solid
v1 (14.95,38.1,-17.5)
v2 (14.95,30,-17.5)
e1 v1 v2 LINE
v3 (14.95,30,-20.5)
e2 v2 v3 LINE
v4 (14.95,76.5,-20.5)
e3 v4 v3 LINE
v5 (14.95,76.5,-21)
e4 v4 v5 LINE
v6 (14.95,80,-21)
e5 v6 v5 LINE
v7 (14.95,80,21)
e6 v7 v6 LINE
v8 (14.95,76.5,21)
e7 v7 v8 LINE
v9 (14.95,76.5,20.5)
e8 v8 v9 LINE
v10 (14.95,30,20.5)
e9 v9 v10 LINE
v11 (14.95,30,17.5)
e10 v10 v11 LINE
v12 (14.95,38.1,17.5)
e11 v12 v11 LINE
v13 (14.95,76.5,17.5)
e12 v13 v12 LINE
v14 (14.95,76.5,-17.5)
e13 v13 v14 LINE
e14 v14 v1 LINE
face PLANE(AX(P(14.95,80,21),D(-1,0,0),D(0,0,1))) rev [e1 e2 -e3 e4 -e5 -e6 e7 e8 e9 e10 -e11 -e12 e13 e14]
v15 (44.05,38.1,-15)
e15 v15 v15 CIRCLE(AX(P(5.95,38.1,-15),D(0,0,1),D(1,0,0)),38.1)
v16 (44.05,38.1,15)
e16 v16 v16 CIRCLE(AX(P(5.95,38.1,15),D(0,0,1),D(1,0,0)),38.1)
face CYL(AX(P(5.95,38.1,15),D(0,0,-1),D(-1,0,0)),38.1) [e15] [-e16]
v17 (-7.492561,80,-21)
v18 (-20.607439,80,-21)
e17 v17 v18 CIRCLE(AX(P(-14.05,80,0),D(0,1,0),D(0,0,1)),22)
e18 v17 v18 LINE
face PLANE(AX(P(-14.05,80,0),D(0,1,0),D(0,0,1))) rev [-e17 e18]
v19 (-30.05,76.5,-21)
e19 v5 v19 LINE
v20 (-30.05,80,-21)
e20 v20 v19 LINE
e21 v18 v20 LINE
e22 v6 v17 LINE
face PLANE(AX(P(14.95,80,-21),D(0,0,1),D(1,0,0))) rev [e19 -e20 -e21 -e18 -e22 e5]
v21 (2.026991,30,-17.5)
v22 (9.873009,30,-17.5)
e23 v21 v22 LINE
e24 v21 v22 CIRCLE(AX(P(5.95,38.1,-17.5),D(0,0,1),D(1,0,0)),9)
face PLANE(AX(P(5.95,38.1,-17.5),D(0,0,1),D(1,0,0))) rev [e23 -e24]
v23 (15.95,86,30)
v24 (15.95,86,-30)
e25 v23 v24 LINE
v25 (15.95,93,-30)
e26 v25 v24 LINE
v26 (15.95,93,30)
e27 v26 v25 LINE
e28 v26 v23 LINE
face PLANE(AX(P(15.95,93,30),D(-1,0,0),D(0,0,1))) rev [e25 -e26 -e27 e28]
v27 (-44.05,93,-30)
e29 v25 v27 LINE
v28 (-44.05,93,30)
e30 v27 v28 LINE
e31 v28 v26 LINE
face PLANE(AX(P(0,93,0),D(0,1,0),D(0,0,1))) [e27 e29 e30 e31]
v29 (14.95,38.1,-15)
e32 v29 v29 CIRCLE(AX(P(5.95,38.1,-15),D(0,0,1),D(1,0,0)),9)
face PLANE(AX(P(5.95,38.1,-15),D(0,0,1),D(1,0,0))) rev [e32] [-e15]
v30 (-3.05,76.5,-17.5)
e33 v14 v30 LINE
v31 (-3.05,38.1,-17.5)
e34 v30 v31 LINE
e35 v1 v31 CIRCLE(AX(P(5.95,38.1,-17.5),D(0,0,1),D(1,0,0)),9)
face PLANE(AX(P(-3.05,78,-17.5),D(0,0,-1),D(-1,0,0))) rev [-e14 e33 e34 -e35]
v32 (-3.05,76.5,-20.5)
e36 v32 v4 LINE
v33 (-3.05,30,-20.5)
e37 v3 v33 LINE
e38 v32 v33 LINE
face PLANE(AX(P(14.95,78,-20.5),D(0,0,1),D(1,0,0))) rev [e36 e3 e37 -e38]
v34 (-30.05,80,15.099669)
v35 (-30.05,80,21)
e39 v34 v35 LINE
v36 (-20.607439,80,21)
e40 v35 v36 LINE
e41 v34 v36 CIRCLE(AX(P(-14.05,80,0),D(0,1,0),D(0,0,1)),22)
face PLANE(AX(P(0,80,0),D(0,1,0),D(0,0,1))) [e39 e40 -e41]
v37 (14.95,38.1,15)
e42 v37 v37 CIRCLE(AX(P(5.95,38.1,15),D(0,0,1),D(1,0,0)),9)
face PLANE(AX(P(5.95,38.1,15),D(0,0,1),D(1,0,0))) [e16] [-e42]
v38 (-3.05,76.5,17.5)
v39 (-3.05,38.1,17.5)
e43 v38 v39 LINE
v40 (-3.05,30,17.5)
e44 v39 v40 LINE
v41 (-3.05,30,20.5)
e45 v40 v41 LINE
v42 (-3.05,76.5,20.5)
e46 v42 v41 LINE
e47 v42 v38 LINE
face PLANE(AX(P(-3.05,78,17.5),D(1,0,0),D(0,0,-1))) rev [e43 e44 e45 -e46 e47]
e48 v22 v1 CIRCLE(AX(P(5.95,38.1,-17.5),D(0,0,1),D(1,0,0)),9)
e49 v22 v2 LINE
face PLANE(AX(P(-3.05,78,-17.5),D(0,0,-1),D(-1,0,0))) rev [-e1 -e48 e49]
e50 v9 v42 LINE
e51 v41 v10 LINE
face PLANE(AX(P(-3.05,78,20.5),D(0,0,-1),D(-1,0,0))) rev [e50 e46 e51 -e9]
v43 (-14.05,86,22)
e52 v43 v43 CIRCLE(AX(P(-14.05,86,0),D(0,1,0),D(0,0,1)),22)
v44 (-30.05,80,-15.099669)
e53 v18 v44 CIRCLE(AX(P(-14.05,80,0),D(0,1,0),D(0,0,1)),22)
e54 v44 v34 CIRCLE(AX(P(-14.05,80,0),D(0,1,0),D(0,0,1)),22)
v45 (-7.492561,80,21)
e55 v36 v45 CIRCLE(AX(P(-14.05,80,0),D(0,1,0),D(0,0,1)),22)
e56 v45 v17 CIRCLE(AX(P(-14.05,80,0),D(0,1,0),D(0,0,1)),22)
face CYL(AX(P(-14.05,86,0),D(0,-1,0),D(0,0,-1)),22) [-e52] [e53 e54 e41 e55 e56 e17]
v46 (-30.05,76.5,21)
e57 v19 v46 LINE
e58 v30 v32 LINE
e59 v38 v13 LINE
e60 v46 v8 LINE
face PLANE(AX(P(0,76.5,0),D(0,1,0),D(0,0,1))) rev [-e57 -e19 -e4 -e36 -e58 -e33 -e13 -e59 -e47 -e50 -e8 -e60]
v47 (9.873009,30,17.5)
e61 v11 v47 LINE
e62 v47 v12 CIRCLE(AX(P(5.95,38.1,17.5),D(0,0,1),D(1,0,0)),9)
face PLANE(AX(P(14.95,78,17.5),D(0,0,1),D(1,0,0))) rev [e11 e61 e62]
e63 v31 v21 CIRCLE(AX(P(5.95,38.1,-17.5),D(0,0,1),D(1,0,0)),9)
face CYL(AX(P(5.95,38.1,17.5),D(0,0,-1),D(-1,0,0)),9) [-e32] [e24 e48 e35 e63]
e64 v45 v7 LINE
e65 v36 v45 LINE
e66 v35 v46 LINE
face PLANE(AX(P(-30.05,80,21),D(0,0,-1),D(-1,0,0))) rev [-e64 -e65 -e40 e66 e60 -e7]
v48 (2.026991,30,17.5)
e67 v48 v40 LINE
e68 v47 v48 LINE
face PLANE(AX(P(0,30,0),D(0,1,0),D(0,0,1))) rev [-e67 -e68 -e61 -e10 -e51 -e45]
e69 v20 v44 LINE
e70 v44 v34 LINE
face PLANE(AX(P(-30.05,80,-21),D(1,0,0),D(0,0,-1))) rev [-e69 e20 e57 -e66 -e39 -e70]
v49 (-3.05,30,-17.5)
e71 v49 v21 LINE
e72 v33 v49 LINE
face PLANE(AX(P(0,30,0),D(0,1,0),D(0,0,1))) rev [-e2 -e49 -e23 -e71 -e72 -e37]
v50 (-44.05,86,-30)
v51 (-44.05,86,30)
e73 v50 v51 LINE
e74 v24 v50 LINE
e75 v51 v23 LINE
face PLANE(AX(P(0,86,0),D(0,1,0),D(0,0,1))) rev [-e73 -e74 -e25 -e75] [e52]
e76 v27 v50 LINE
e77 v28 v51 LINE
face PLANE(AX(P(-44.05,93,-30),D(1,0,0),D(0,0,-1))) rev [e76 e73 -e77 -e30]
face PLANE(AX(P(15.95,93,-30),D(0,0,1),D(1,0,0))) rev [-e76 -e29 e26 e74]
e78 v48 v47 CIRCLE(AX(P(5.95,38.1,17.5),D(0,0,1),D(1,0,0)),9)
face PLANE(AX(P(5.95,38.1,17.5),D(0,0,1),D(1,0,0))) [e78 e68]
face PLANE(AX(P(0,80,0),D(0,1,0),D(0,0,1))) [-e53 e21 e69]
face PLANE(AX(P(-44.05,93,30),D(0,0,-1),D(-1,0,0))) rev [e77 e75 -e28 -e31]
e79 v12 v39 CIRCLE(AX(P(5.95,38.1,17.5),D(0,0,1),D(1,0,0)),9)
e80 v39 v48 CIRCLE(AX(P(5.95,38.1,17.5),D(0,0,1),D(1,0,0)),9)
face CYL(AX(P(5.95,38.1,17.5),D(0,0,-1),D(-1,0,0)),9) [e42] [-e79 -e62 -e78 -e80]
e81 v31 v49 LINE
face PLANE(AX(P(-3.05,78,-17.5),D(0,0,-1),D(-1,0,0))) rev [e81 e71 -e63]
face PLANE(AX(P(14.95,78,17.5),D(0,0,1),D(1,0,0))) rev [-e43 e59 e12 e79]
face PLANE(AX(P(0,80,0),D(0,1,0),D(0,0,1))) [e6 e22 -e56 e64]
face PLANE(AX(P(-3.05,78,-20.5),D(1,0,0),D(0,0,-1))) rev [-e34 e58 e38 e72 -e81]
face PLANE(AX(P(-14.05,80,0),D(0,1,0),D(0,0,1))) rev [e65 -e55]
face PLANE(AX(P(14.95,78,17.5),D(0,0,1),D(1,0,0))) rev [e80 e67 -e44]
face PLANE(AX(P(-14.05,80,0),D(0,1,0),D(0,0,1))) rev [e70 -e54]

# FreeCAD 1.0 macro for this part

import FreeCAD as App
import Part
import Sketcher


def add_polygon(sketch, points):
    """Adds a closed chain of lines whose ends are joined by coincident constraints."""
    first, n = sketch.GeometryCount, len(points)
    for a, b in zip(points, points[1:] + points[:1]):
        sketch.addGeometry(Part.LineSegment(App.Vector(*a, 0), App.Vector(*b, 0)), False)
    for i in range(n):
        sketch.addConstraint(Sketcher.Constraint("Coincident", first + i, 2, first + (i + 1) % n, 1))

doc = App.newDocument("Part")
body = doc.addObject("PartDesign::Body", "Body")

sketch1 = body.newObject("Sketcher::SketchObject", "Sketch")
sketch1.AttachmentSupport = (doc.getObject("XZ_Plane"), [""])
sketch1.MapMode = "FlatFace"
sketch1.AttachmentOffset = App.Placement(App.Vector(0, 0, -89), App.Rotation())
add_polygon(sketch1, [(-44, -30), (-44, 30), (16, 30), (16, -30)])
sketch1.addConstraint(Sketcher.Constraint("Vertical", 0))
sketch1.addConstraint(Sketcher.Constraint("Horizontal", 1))
sketch1.addConstraint(Sketcher.Constraint("Vertical", 2))
sketch1.addConstraint(Sketcher.Constraint("Horizontal", 3))
sketch1.addConstraint(Sketcher.Constraint("Equal", 3, 0))
sketch1.addConstraint(Sketcher.Constraint("DistanceX", 1, 1, 1, 2, 60.0))
sketch1.addConstraint(Sketcher.Constraint("DistanceY", -1, 1, 0, 2, 30.0))
sketch1.addConstraint(Sketcher.Constraint("DistanceX", 0, 2, -1, 1, 44.05))
pad1 = body.newObject("PartDesign::Pad", "Pad")
pad1.Profile = sketch1
pad1.Length = 4
pad1.Reversed = True

sketch2 = body.newObject("Sketcher::SketchObject", "Sketch001")
sketch2.AttachmentSupport = (doc.getObject("XZ_Plane"), [""])
sketch2.MapMode = "FlatFace"
sketch2.AttachmentOffset = App.Placement(App.Vector(0, 0, -86), App.Rotation())
add_polygon(sketch2, [(-44, -30), (-44, 30), (16, 30), (16, -30)])
sketch2.addConstraint(Sketcher.Constraint("Vertical", 0))
sketch2.addConstraint(Sketcher.Constraint("Horizontal", 1))
sketch2.addConstraint(Sketcher.Constraint("Vertical", 2))
sketch2.addConstraint(Sketcher.Constraint("Horizontal", 3))
sketch2.addConstraint(Sketcher.Constraint("Equal", 3, 0))
sketch2.addConstraint(Sketcher.Constraint("DistanceX", 1, 1, 1, 2, 60.0))
sketch2.addConstraint(Sketcher.Constraint("DistanceY", -1, 1, 0, 2, 30.0))
sketch2.addConstraint(Sketcher.Constraint("DistanceX", 0, 2, -1, 1, 44.05))
pad2 = body.newObject("PartDesign::Pad", "Pad001")
pad2.Profile = sketch2
pad2.Length = 3
pad2.Reversed = True

sketch3 = body.newObject("Sketcher::SketchObject", "Sketch002")
sketch3.AttachmentSupport = (doc.getObject("XZ_Plane"), [""])
sketch3.MapMode = "FlatFace"
sketch3.AttachmentOffset = App.Placement(App.Vector(0, 0, -80), App.Rotation())
sketch3.addGeometry(Part.Circle(App.Vector(-14, 0, 0), App.Vector(0, 0, 1), 22), False)
sketch3.addConstraint(Sketcher.Constraint("PointOnObject", 0, 3, -1))
sketch3.addConstraint(Sketcher.Constraint("Diameter", 0, 44.0))
sketch3.addConstraint(Sketcher.Constraint("DistanceX", 0, 3, -1, 1, 14.05))
pad3 = body.newObject("PartDesign::Pad", "Pad002")
pad3.Profile = sketch3
pad3.Length = 6
pad3.Reversed = True

sketch4 = body.newObject("Sketcher::SketchObject", "Sketch003")
sketch4.AttachmentSupport = (doc.getObject("XZ_Plane"), [""])
sketch4.MapMode = "FlatFace"
sketch4.AttachmentOffset = App.Placement(App.Vector(0, 0, -76.5), App.Rotation())
add_polygon(sketch4, [(-30, -21), (-30, 21), (15, 21), (15, -21)])
sketch4.addConstraint(Sketcher.Constraint("Vertical", 0))
sketch4.addConstraint(Sketcher.Constraint("Horizontal", 1))
sketch4.addConstraint(Sketcher.Constraint("Vertical", 2))
sketch4.addConstraint(Sketcher.Constraint("Horizontal", 3))
sketch4.addConstraint(Sketcher.Constraint("DistanceX", 1, 1, 1, 2, 45.0))
sketch4.addConstraint(Sketcher.Constraint("DistanceY", 0, 1, 0, 2, 42.0))
sketch4.addConstraint(Sketcher.Constraint("DistanceY", -1, 1, 0, 2, 21.0))
sketch4.addConstraint(Sketcher.Constraint("DistanceX", 0, 2, -1, 1, 30.05))
pad4 = body.newObject("PartDesign::Pad", "Pad003")
pad4.Profile = sketch4
pad4.Length = 3.5
pad4.Reversed = True

sketch5 = body.newObject("Sketcher::SketchObject", "Sketch004")
sketch5.AttachmentSupport = (doc.getObject("XZ_Plane"), [""])
sketch5.MapMode = "FlatFace"
sketch5.AttachmentOffset = App.Placement(App.Vector(0, 0, -30), App.Rotation())
add_polygon(sketch5, [(-3, -20.5), (-3, -17.5), (14.9, -17.5), (14.9, -20.5)])
sketch5.addConstraint(Sketcher.Constraint("Vertical", 0))
sketch5.addConstraint(Sketcher.Constraint("Horizontal", 1))
sketch5.addConstraint(Sketcher.Constraint("Vertical", 2))
sketch5.addConstraint(Sketcher.Constraint("Horizontal", 3))
sketch5.addConstraint(Sketcher.Constraint("DistanceX", 1, 1, 1, 2, 18.0))
sketch5.addConstraint(Sketcher.Constraint("DistanceY", 0, 1, 0, 2, 3.0))
sketch5.addConstraint(Sketcher.Constraint("DistanceY", 0, 2, -1, 1, 17.5))
sketch5.addConstraint(Sketcher.Constraint("DistanceX", 0, 2, -1, 1, 3.05))
pad5 = body.newObject("PartDesign::Pad", "Pad004")
pad5.Profile = sketch5
pad5.Length = 48
pad5.Reversed = True

sketch6 = body.newObject("Sketcher::SketchObject", "Sketch005")
sketch6.AttachmentSupport = (doc.getObject("XZ_Plane"), [""])
sketch6.MapMode = "FlatFace"
sketch6.AttachmentOffset = App.Placement(App.Vector(0, 0, -30), App.Rotation())
add_polygon(sketch6, [(-3, 17.5), (-3, 20.5), (14.9, 20.5), (14.9, 17.5)])
sketch6.addConstraint(Sketcher.Constraint("Vertical", 0))
sketch6.addConstraint(Sketcher.Constraint("Horizontal", 1))
sketch6.addConstraint(Sketcher.Constraint("Vertical", 2))
sketch6.addConstraint(Sketcher.Constraint("Horizontal", 3))
sketch6.addConstraint(Sketcher.Constraint("DistanceX", 1, 1, 1, 2, 18.0))
sketch6.addConstraint(Sketcher.Constraint("DistanceY", 0, 1, 0, 2, 3.0))
sketch6.addConstraint(Sketcher.Constraint("DistanceY", -1, 1, 0, 2, 20.5))
sketch6.addConstraint(Sketcher.Constraint("DistanceX", 0, 2, -1, 1, 3.05))
pad6 = body.newObject("PartDesign::Pad", "Pad005")
pad6.Profile = sketch6
pad6.Length = 48
pad6.Reversed = True
body2 = doc.addObject("PartDesign::Body", "Body001")

sketch7 = body2.newObject("Sketcher::SketchObject", "Sketch006")
sketch7.AttachmentSupport = (doc.getObject("XY_Plane001"), [""])
sketch7.MapMode = "FlatFace"
sketch7.AttachmentOffset = App.Placement(App.Vector(0, 0, -15), App.Rotation())
sketch7.addGeometry(Part.Circle(App.Vector(6, 38, 0), App.Vector(0, 0, 1), 38), False)
sketch7.addConstraint(Sketcher.Constraint("Diameter", 0, 76.2))
sketch7.addConstraint(Sketcher.Constraint("DistanceY", -1, 1, 0, 3, 38.1))
sketch7.addConstraint(Sketcher.Constraint("DistanceX", -1, 1, 0, 3, 5.95))
pad7 = body2.newObject("PartDesign::Pad", "Pad006")
pad7.Profile = sketch7
pad7.Length = 30
body.AllowCompound = True
doc.recompute()

boolean = body.newObject("PartDesign::Boolean", "Boolean")
boolean.Type = "Fuse"
boolean.addObjects([body2])

sketch8 = body.newObject("Sketcher::SketchObject", "Sketch007")
sketch8.AttachmentSupport = (doc.getObject("XY_Plane"), [""])
sketch8.MapMode = "FlatFace"
sketch8.AttachmentOffset = App.Placement(App.Vector(0, 0, -17.5), App.Rotation())
sketch8.addGeometry(Part.Circle(App.Vector(6, 38, 0), App.Vector(0, 0, 1), 9), False)
sketch8.addConstraint(Sketcher.Constraint("Diameter", 0, 18.0))
sketch8.addConstraint(Sketcher.Constraint("DistanceY", -1, 1, 0, 3, 38.1))
sketch8.addConstraint(Sketcher.Constraint("DistanceX", -1, 1, 0, 3, 5.95))
pad8 = body.newObject("PartDesign::Pad", "Pad007")
pad8.Profile = sketch8
pad8.Length = 35

doc.recompute()
